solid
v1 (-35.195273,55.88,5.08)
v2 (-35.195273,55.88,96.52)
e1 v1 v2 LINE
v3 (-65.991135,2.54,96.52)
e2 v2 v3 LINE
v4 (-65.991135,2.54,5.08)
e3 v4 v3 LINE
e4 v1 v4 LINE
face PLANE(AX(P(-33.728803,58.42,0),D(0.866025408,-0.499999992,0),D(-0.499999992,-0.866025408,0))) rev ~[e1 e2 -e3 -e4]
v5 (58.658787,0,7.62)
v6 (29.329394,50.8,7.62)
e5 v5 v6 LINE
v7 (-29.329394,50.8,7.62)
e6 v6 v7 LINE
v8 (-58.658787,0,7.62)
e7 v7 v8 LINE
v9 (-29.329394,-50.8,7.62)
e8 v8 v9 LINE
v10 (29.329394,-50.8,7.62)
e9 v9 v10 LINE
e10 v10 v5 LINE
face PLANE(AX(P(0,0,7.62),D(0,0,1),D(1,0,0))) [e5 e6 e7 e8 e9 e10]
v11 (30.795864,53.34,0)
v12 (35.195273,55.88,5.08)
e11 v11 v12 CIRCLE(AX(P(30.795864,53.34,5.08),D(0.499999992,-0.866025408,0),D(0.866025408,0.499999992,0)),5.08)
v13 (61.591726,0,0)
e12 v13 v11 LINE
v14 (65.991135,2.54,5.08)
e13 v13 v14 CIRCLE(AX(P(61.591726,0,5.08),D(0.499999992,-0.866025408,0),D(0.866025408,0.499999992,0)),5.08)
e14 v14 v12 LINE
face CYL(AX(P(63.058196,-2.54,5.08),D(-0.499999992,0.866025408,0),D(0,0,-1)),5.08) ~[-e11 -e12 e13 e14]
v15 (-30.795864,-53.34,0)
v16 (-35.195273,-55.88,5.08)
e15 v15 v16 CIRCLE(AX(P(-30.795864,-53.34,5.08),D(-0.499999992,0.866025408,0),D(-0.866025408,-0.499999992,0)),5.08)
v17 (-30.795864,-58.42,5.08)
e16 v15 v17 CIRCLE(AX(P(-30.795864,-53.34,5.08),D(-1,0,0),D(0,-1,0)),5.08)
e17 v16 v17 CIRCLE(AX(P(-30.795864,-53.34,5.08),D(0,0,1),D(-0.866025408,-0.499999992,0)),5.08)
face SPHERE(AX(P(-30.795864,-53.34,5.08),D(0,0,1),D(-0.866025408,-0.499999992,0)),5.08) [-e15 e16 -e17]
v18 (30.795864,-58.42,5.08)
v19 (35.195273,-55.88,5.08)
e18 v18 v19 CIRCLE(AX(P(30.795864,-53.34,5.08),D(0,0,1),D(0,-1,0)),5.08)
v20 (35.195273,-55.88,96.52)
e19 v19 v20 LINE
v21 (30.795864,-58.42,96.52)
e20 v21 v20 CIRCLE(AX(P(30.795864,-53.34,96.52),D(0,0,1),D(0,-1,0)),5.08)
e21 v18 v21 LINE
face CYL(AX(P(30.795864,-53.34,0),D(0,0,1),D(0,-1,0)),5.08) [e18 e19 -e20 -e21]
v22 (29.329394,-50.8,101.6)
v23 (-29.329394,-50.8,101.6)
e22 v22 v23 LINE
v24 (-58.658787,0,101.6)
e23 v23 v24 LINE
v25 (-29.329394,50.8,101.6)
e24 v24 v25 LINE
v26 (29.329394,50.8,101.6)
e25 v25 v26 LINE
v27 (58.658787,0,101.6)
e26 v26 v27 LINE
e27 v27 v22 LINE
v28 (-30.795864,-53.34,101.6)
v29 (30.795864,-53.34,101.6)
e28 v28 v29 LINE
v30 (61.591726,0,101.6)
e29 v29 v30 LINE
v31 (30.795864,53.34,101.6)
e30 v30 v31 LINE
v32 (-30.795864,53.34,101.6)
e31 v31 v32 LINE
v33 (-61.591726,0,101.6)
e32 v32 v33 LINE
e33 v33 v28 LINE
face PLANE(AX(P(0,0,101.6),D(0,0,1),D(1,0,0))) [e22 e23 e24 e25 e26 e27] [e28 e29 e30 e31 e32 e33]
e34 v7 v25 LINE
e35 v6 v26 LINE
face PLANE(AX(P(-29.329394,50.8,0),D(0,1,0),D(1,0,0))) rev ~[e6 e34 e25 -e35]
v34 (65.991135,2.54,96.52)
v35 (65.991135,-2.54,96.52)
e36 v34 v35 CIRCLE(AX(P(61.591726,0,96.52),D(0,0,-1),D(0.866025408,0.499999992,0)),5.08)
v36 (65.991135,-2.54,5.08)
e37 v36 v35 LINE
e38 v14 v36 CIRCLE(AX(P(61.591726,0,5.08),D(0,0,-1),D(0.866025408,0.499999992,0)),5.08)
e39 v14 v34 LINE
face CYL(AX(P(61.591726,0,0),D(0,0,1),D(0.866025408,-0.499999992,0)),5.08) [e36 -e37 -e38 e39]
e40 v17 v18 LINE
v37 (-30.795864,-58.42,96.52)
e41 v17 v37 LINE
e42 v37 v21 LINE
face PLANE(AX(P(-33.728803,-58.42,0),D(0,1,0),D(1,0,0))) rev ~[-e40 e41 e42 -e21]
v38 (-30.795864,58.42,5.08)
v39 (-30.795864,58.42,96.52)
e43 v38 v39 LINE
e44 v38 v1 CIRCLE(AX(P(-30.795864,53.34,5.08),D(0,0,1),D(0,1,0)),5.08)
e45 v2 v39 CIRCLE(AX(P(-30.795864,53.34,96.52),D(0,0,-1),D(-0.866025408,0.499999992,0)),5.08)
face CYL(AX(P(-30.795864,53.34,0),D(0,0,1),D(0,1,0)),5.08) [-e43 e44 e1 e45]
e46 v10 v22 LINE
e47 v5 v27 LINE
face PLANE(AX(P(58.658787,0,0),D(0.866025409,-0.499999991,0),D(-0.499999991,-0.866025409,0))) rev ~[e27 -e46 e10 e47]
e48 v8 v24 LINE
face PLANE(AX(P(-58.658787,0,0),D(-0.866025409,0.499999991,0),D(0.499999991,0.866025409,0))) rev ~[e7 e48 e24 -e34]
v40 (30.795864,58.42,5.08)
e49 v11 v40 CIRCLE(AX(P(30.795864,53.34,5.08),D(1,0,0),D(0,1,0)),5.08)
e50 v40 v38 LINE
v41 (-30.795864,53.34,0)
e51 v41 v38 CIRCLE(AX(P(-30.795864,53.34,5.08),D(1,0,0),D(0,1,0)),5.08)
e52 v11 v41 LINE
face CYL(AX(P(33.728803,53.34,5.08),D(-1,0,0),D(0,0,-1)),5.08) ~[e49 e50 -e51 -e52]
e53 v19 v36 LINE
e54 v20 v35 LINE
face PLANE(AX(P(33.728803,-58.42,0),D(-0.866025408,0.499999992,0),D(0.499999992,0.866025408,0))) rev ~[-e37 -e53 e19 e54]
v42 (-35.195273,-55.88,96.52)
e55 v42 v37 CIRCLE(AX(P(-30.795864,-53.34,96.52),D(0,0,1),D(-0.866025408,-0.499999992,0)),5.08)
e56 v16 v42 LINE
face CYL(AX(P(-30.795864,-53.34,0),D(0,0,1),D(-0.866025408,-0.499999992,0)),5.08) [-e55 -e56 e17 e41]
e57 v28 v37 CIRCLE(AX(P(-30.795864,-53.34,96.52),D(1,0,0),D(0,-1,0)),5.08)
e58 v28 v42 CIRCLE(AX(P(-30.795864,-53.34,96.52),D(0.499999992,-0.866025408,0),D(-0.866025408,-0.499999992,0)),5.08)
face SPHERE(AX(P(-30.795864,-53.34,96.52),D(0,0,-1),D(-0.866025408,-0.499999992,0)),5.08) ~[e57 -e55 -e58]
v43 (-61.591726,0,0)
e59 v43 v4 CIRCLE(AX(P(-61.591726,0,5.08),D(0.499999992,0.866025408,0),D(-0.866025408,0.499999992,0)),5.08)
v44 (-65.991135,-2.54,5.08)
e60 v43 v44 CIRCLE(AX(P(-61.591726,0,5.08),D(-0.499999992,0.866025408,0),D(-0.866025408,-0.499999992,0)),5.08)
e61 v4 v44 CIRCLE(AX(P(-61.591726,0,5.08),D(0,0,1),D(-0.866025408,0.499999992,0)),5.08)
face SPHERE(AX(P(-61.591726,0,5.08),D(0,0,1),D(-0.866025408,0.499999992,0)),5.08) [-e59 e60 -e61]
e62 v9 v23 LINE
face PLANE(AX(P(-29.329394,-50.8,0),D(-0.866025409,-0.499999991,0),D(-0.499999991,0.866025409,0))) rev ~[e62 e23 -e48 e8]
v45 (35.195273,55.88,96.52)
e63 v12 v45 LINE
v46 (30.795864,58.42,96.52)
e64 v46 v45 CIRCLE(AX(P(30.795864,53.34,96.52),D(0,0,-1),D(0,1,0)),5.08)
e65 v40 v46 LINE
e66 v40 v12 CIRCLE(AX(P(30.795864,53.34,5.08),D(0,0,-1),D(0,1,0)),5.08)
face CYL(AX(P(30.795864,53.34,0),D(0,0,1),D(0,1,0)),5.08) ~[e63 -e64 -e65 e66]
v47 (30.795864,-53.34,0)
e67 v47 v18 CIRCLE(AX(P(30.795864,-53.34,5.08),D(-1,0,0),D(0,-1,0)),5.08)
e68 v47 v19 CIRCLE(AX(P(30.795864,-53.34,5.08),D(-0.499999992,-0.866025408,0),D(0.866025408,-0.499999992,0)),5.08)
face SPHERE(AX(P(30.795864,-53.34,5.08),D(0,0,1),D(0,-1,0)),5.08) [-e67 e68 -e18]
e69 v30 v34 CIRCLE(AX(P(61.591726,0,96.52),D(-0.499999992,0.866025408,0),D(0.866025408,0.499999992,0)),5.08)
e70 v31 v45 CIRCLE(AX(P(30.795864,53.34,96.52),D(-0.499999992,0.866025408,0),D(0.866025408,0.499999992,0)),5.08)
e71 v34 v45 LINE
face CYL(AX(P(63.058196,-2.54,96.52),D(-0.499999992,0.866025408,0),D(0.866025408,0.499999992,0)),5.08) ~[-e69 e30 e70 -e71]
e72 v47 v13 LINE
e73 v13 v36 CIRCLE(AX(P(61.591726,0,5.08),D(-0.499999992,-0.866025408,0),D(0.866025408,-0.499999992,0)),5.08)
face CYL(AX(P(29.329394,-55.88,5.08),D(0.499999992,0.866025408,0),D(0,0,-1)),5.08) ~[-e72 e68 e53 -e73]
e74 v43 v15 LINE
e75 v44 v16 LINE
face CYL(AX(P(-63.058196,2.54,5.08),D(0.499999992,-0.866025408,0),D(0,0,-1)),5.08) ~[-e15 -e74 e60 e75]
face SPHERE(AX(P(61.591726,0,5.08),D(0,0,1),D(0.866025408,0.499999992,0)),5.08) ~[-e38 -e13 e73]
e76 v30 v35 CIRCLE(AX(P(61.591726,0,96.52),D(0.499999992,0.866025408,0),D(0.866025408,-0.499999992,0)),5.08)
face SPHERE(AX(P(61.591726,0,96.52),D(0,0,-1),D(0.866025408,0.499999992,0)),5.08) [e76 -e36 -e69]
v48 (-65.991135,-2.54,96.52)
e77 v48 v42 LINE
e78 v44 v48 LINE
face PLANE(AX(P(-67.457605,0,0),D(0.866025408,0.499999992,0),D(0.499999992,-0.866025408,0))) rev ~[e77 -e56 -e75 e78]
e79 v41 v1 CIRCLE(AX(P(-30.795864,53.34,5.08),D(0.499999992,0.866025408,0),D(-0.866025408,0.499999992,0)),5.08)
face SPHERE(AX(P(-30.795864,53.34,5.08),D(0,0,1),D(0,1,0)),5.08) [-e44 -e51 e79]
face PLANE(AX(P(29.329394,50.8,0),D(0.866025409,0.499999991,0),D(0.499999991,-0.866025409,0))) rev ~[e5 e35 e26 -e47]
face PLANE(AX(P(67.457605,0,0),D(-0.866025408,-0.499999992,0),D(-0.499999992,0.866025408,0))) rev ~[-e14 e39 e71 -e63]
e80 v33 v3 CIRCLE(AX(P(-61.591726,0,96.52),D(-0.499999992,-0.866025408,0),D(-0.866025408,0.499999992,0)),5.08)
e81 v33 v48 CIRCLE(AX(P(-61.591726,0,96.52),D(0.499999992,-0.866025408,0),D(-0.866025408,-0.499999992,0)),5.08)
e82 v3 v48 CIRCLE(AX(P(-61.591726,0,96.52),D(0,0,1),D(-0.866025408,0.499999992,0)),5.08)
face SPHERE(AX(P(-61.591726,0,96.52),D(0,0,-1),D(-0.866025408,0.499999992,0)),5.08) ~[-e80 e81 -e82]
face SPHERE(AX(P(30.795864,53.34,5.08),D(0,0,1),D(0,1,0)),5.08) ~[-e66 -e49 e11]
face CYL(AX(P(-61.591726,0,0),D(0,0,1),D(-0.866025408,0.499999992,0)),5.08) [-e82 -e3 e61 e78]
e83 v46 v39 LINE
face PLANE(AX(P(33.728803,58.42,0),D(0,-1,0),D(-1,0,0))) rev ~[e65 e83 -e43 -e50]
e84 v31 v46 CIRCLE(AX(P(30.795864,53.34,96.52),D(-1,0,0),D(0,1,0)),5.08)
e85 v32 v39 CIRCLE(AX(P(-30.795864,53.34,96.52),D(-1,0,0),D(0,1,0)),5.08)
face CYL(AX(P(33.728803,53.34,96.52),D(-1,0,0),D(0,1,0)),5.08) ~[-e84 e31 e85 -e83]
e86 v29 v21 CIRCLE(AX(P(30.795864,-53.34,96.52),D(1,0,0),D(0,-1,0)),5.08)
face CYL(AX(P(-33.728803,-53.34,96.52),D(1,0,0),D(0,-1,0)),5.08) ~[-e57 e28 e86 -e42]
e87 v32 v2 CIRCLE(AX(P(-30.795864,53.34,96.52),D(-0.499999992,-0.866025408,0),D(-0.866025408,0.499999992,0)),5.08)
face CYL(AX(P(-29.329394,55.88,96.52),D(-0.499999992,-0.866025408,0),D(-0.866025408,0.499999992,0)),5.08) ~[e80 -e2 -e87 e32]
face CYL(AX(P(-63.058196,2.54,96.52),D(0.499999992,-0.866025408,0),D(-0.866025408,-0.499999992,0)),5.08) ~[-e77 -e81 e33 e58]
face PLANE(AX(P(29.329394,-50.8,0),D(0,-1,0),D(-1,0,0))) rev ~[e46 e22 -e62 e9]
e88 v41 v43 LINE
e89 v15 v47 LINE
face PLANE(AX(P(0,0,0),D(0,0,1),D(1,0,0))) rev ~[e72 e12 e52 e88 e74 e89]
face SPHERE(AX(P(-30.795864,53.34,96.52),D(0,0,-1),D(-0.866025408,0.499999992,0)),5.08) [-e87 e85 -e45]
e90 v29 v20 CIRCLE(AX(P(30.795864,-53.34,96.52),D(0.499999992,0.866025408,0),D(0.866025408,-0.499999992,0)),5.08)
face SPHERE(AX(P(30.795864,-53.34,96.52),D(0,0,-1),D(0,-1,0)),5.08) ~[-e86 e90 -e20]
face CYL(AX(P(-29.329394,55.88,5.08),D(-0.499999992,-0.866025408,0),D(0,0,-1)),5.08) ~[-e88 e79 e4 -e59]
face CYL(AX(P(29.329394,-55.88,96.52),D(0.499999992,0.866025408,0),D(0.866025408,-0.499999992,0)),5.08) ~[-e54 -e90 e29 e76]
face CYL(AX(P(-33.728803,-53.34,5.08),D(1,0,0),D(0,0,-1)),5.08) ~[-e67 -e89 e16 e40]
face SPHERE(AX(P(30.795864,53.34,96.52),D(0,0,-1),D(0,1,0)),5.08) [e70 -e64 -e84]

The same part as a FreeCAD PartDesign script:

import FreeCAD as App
import Part
import Sketcher
Q = App.Units.Quantity


def edges_at(feature, points):
    """Names of the edges that pass closest to the given points."""
    edges = feature.Shape.Edges
    near = lambda p: min(range(len(edges)), key=lambda i: edges[i].distToShape(Part.Vertex(*p))[0])
    return sorted({f"Edge{near(p) + 1}" for p in points})

doc = App.newDocument("Part")
params = doc.addObject("Spreadsheet::Sheet", "Params")
for row, (alias, value) in enumerate([
    ("pad1_length", "4 in"),
    ("pad2_length", "0.3 in"),
    ("fillet_radius", "0.2 in"),
], start=1):
    params.set(f"A{row}", alias)
    params.set(f"B{row}", "=" + value)
    params.setAlias(f"B{row}", alias)

body = doc.addObject("PartDesign::Body", "Body")

sketch1 = doc.addObject("Sketcher::SketchObject", "Sketch")
body.addObject(sketch1)
sketch1.AttachmentSupport = (doc.XY_Plane, [""])
sketch1.MapMode = "FlatFace"
sketch1.addGeometry([
    Part.LineSegment(App.Vector(34, 58, 0), App.Vector(-34, 58, 0)),
    Part.LineSegment(App.Vector(-34, 58, 0), App.Vector(-67, 0, 0)),
    Part.LineSegment(App.Vector(-67, 0, 0), App.Vector(-34, -58, 0)),
    Part.LineSegment(App.Vector(-34, -58, 0), App.Vector(34, -58, 0)),
    Part.LineSegment(App.Vector(34, -58, 0), App.Vector(67, 0, 0)),
    Part.LineSegment(App.Vector(67, 0, 0), App.Vector(34, 58, 0)),
    Part.LineSegment(App.Vector(-29, -51, 0), App.Vector(-59, 0, 0)),
    Part.LineSegment(App.Vector(-59, 0, 0), App.Vector(-29, 51, 0)),
    Part.LineSegment(App.Vector(-29, 51, 0), App.Vector(29, 51, 0)),
    Part.LineSegment(App.Vector(29, 51, 0), App.Vector(59, 0, 0)),
    Part.LineSegment(App.Vector(59, 0, 0), App.Vector(29, -51, 0)),
    Part.LineSegment(App.Vector(29, -51, 0), App.Vector(-29, -51, 0)),
], False)
sketch1.addConstraint([
    Sketcher.Constraint("Coincident", 0, 2, 1, 1),
    Sketcher.Constraint("Coincident", 1, 2, 2, 1),
    Sketcher.Constraint("Coincident", 2, 2, 3, 1),
    Sketcher.Constraint("Coincident", 3, 2, 4, 1),
    Sketcher.Constraint("Coincident", 4, 2, 5, 1),
    Sketcher.Constraint("Coincident", 5, 2, 0, 1),
    Sketcher.Constraint("Coincident", 6, 2, 7, 1),
    Sketcher.Constraint("Coincident", 7, 2, 8, 1),
    Sketcher.Constraint("Coincident", 8, 2, 9, 1),
    Sketcher.Constraint("Coincident", 9, 2, 10, 1),
    Sketcher.Constraint("Coincident", 10, 2, 11, 1),
    Sketcher.Constraint("Coincident", 11, 2, 6, 1),
    Sketcher.Constraint("Horizontal", 0),
    Sketcher.Constraint("Horizontal", 3),
    Sketcher.Constraint("Horizontal", 8),
    Sketcher.Constraint("Horizontal", 11),
    Sketcher.Constraint("Symmetric", 0, 2, 3, 2, -1, 1),
    Sketcher.Constraint("Symmetric", 1, 2, 4, 2, -1, 1),
    Sketcher.Constraint("Symmetric", 6, 2, 9, 2, -1, 1),
    Sketcher.Constraint("Symmetric", 7, 2, 10, 2, -1, 1),
    Sketcher.Constraint("PointOnObject", 1, 2, -1),
    Sketcher.Constraint("PointOnObject", 6, 2, -1),
    Sketcher.Constraint("Parallel", 2, 5),
    Sketcher.Constraint("Parallel", 5, 6),
    Sketcher.Constraint("Parallel", 4, 7),
    Sketcher.Constraint("Parallel", 6, 9),
    Sketcher.Constraint("Vertical", 0, 2, 2, 2),
    Sketcher.Constraint("DistanceY", -1, 1, 7, 2, Q("2 in")),
    Sketcher.Constraint("Angle", 1, Q("-119.999999 deg")),
    Sketcher.Constraint("DistanceY", -1, 1, 0, 2, Q("2.3 in")),
    Sketcher.Constraint("DistanceX", 7, 2, 4, 2, 96.786999),
    Sketcher.Constraint("DistanceX", 0, 2, 0, 1, 67.457606),
])
pad1 = doc.addObject("PartDesign::Pad", "Pad")
body.addObject(pad1)
pad1.Profile = sketch1
pad1.setExpression("Length", "Params.pad1_length")

sketch2 = doc.addObject("Sketcher::SketchObject", "Sketch001")
body.addObject(sketch2)
sketch2.AttachmentSupport = (doc.XY_Plane, [""])
sketch2.MapMode = "FlatFace"
sketch2.addGeometry([
    Part.LineSegment(App.Vector(-29, 51, 0), App.Vector(-59, 0, 0)),
    Part.LineSegment(App.Vector(-59, 0, 0), App.Vector(-29, -51, 0)),
    Part.LineSegment(App.Vector(-29, -51, 0), App.Vector(29, -51, 0)),
    Part.LineSegment(App.Vector(29, -51, 0), App.Vector(59, 0, 0)),
    Part.LineSegment(App.Vector(59, 0, 0), App.Vector(29, 51, 0)),
    Part.LineSegment(App.Vector(29, 51, 0), App.Vector(-29, 51, 0)),
], False)
sketch2.addConstraint([
    Sketcher.Constraint("Coincident", 0, 2, 1, 1),
    Sketcher.Constraint("Coincident", 1, 2, 2, 1),
    Sketcher.Constraint("Coincident", 2, 2, 3, 1),
    Sketcher.Constraint("Coincident", 3, 2, 4, 1),
    Sketcher.Constraint("Coincident", 4, 2, 5, 1),
    Sketcher.Constraint("Coincident", 5, 2, 0, 1),
    Sketcher.Constraint("Horizontal", 2),
    Sketcher.Constraint("Horizontal", 5),
    Sketcher.Constraint("Symmetric", 0, 2, 3, 2, -1, 1),
    Sketcher.Constraint("Symmetric", 1, 2, 4, 2, -1, 1),
    Sketcher.Constraint("PointOnObject", 0, 2, -1),
    Sketcher.Constraint("Parallel", 0, 3),
    Sketcher.Constraint("Vertical", 2, 2, 4, 2),
    Sketcher.Constraint("DistanceY", 1, 2, -1, 1, Q("2 in")),
    Sketcher.Constraint("Angle", 0, Q("-119.999999 deg")),
    Sketcher.Constraint("DistanceX", 2, 1, 2, 2, 58.658788),
])
pad2 = doc.addObject("PartDesign::Pad", "Pad001")
body.addObject(pad2)
pad2.Profile = sketch2
pad2.setExpression("Length", "Params.pad2_length")
doc.recompute()

fillet = doc.addObject("PartDesign::Fillet", "Fillet")
body.addObject(fillet)
fillet.Base = (pad2, edges_at(pad2, [
    (33.729, 58.42, 50.8),
    (0, 58.42, 101.6),
    (-33.729, 58.42, 50.8),
    (0, 58.42, 0),
    (-67.458, 0, 50.8),
    (-50.593, 29.21, 0),
    (-50.593, 29.21, 101.6),
    (-33.729, -58.42, 50.8),
    (-50.593, -29.21, 0),
    (-50.593, -29.21, 101.6),
    (33.729, -58.42, 50.8),
    (0, -58.42, 0),
    (0, -58.42, 101.6),
    (67.458, 0, 50.8),
    (50.593, 29.21, 0),
    (50.593, 29.21, 101.6),
    (50.593, -29.21, 0),
    (50.593, -29.21, 101.6),
]))
fillet.setExpression("Radius", "Params.fillet_radius")

doc.recompute()
